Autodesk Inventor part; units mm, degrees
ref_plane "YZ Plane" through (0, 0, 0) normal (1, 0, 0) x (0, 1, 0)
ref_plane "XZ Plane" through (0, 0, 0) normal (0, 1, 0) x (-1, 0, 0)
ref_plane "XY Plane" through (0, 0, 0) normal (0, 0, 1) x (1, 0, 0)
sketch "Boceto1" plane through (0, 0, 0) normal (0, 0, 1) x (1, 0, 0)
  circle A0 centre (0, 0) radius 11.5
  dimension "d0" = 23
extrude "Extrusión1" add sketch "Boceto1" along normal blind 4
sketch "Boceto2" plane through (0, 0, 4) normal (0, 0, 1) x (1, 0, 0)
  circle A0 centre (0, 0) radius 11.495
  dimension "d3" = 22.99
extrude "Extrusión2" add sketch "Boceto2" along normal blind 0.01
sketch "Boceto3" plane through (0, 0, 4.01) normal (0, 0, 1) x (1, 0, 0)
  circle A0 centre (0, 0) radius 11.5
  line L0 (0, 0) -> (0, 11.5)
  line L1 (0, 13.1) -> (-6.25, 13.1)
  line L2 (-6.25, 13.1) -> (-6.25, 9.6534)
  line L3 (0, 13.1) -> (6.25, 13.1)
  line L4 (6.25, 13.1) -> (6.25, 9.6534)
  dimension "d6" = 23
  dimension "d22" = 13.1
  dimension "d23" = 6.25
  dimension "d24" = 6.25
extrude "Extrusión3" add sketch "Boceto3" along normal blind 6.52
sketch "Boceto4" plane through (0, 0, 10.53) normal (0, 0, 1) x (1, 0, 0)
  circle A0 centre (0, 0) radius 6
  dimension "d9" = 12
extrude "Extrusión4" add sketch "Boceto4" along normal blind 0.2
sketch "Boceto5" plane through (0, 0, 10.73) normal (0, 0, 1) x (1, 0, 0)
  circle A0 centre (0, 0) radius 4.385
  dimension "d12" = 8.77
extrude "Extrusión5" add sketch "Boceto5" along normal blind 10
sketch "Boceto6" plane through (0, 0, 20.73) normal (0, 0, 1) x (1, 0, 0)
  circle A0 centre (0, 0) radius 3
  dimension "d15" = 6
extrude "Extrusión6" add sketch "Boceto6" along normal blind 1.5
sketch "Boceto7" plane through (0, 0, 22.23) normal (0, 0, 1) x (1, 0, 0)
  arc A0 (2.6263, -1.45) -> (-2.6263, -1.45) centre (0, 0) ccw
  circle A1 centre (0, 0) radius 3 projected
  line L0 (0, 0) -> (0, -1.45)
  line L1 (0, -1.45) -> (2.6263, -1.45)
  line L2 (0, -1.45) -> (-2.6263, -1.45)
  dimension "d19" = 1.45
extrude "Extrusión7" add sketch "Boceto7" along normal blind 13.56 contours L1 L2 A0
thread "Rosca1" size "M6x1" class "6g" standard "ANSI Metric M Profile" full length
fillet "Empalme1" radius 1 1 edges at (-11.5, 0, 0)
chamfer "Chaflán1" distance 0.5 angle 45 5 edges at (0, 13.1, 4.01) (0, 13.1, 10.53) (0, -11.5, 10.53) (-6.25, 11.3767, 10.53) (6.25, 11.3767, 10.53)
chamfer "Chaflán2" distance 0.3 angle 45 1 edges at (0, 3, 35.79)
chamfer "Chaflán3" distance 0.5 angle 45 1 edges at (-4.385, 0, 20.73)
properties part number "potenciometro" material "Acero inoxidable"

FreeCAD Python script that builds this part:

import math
import FreeCAD as App
import Part
import Sketcher
from FreeCAD import Vector
Q = App.Units.Quantity


def edges_at(feature, points):
    """Names of the edges that pass closest to the given points."""
    edges = feature.Shape.Edges
    near = lambda p: min(range(len(edges)), key=lambda i: edges[i].distToShape(Part.Vertex(*p))[0])
    return sorted({f"Edge{near(p) + 1}" for p in points})

doc = App.newDocument("Part")
params = doc.addObject("Spreadsheet::Sheet", "Params")
for row, (alias, value) in enumerate([
    ("sketch1_diameter", "23 mm"),
    ("pad1_length", "4 mm"),
    ("sketch2_diameter", "22.99 mm"),
    ("pad2_length", "0.01 mm"),
    ("sketch3_radius", "11.5 mm"),
    ("pad3_length", "6.52 mm"),
    ("sketch4_diameter", "12 mm"),
    ("pad4_length", "0.2 mm"),
    ("sketch5_diameter", "8.77 mm"),
    ("pad5_length", "10 mm"),
    ("sketch6_diameter", "6 mm"),
    ("pad6_length", "1.5 mm"),
    ("sketch7_radius", "3 mm"),
    ("pad7_length", "13.56 mm"),
    ("fillet_radius", "1 mm"),
    ("chamfer_size", "0.5 mm"),
    ("chamfer2_size", "0.3 mm"),
    ("chamfer3_size", "0.5 mm"),
], start=1):
    params.set(f"A{row}", alias)
    params.set(f"B{row}", "=" + value)
    params.setAlias(f"B{row}", alias)

body = doc.addObject("PartDesign::Body", "Body")

# Sketch on XY plane
sketch1 = body.newObject("Sketcher::SketchObject", "Sketch")
sketch1.AttachmentSupport = (doc.getObject("XY_Plane"), [""])
sketch1.MapMode = "FlatFace"
sketch1.addGeometry(Part.Circle(Vector(0, 0, 0), Vector(0, 0, 1), 12), False)
sketch1.addConstraint(Sketcher.Constraint("Coincident", 0, 3, -1, 1))
sketch1.addConstraint(Sketcher.Constraint("Diameter", 0, Q("23 mm")))
sketch1.setExpression("Constraints[1]", "Params.sketch1_diameter")
pad1 = body.newObject("PartDesign::Pad", "Pad")
pad1.Profile = sketch1
pad1.setExpression("Length", "Params.pad1_length")

# Sketch on XY plane
sketch2 = body.newObject("Sketcher::SketchObject", "Sketch001")
sketch2.AttachmentSupport = (doc.getObject("XY_Plane"), [""])
sketch2.MapMode = "FlatFace"
sketch2.AttachmentOffset = App.Placement(Vector(0, 0, 4), App.Rotation())
sketch2.addGeometry(Part.Circle(Vector(0, 0, 0), Vector(0, 0, 1), 11), False)
sketch2.addConstraint(Sketcher.Constraint("Coincident", 0, 3, -1, 1))
sketch2.addConstraint(Sketcher.Constraint("Diameter", 0, Q("22.99 mm")))
sketch2.setExpression("Constraints[1]", "Params.sketch2_diameter")
pad2 = body.newObject("PartDesign::Pad", "Pad001")
pad2.Profile = sketch2
pad2.setExpression("Length", "Params.pad2_length")

# Sketch on XY plane
sketch3 = body.newObject("Sketcher::SketchObject", "Sketch002")
sketch3.AttachmentSupport = (doc.getObject("XY_Plane"), [""])
sketch3.MapMode = "FlatFace"
sketch3.AttachmentOffset = App.Placement(Vector(0, 0, 4.01), App.Rotation())
sketch3.addGeometry(Part.ArcOfCircle(Part.Circle(Vector(0, 0, 0), Vector(0, 0, 1), 11.5), math.radians(123), math.radians(417)), False)
sketch3.addGeometry(Part.LineSegment(Vector(6.2, 9.7, 0), Vector(6.2, 13.1, 0)), False)
sketch3.addGeometry(Part.LineSegment(Vector(6.2, 13.1, 0), Vector(-6.2, 13.1, 0)), False)
sketch3.addGeometry(Part.LineSegment(Vector(-6.2, 13.1, 0), Vector(-6.2, 9.7, 0)), False)
sketch3.addConstraint(Sketcher.Constraint("Coincident", 0, 2, 1, 1))
sketch3.addConstraint(Sketcher.Constraint("Coincident", 1, 2, 2, 1))
sketch3.addConstraint(Sketcher.Constraint("Coincident", 2, 2, 3, 1))
sketch3.addConstraint(Sketcher.Constraint("Coincident", 3, 2, 0, 1))
sketch3.addConstraint(Sketcher.Constraint("Vertical", 1))
sketch3.addConstraint(Sketcher.Constraint("Horizontal", 2))
sketch3.addConstraint(Sketcher.Constraint("Vertical", 3))
sketch3.addConstraint(Sketcher.Constraint("Coincident", 0, 3, -1, 1))
sketch3.addConstraint(Sketcher.Constraint("Horizontal", 0, 2, 3, 2))
sketch3.addConstraint(Sketcher.Constraint("Radius", 0, Q("11.5 mm")))
sketch3.addConstraint(Sketcher.Constraint("DistanceY", -1, 1, 1, 2, Q("13.1 mm")))
sketch3.addConstraint(Sketcher.Constraint("DistanceX", -1, 1, 0, 2, Q("6.25 mm")))
sketch3.setExpression("Constraints[9]", "Params.sketch3_radius")
pad3 = body.newObject("PartDesign::Pad", "Pad002")
pad3.Profile = sketch3
pad3.setExpression("Length", "Params.pad3_length")

# Sketch on XY plane
sketch4 = body.newObject("Sketcher::SketchObject", "Sketch003")
sketch4.AttachmentSupport = (doc.getObject("XY_Plane"), [""])
sketch4.MapMode = "FlatFace"
sketch4.AttachmentOffset = App.Placement(Vector(0, 0, 10.53), App.Rotation())
sketch4.addGeometry(Part.Circle(Vector(0, 0, 0), Vector(0, 0, 1), 6), False)
sketch4.addConstraint(Sketcher.Constraint("Coincident", 0, 3, -1, 1))
sketch4.addConstraint(Sketcher.Constraint("Diameter", 0, Q("12 mm")))
sketch4.setExpression("Constraints[1]", "Params.sketch4_diameter")
pad4 = body.newObject("PartDesign::Pad", "Pad003")
pad4.Profile = sketch4
pad4.setExpression("Length", "Params.pad4_length")

# Sketch on XY plane
sketch5 = body.newObject("Sketcher::SketchObject", "Sketch004")
sketch5.AttachmentSupport = (doc.getObject("XY_Plane"), [""])
sketch5.MapMode = "FlatFace"
sketch5.AttachmentOffset = App.Placement(Vector(0, 0, 10.73), App.Rotation())
sketch5.addGeometry(Part.Circle(Vector(0, 0, 0), Vector(0, 0, 1), 4.4), False)
sketch5.addConstraint(Sketcher.Constraint("Coincident", 0, 3, -1, 1))
sketch5.addConstraint(Sketcher.Constraint("Diameter", 0, Q("8.77 mm")))
sketch5.setExpression("Constraints[1]", "Params.sketch5_diameter")
pad5 = body.newObject("PartDesign::Pad", "Pad004")
pad5.Profile = sketch5
pad5.setExpression("Length", "Params.pad5_length")

# Sketch on XY plane
sketch6 = body.newObject("Sketcher::SketchObject", "Sketch005")
sketch6.AttachmentSupport = (doc.getObject("XY_Plane"), [""])
sketch6.MapMode = "FlatFace"
sketch6.AttachmentOffset = App.Placement(Vector(0, 0, 20.73), App.Rotation())
sketch6.addGeometry(Part.Circle(Vector(0, 0, 0), Vector(0, 0, 1), 3), False)
sketch6.addConstraint(Sketcher.Constraint("Coincident", 0, 3, -1, 1))
sketch6.addConstraint(Sketcher.Constraint("Diameter", 0, Q("6 mm")))
sketch6.setExpression("Constraints[1]", "Params.sketch6_diameter")
pad6 = body.newObject("PartDesign::Pad", "Pad005")
pad6.Profile = sketch6
pad6.setExpression("Length", "Params.pad6_length")

# Sketch on XY plane
sketch7 = body.newObject("Sketcher::SketchObject", "Sketch006")
sketch7.AttachmentSupport = (doc.getObject("XY_Plane"), [""])
sketch7.MapMode = "FlatFace"
sketch7.AttachmentOffset = App.Placement(Vector(0, 0, 22.23), App.Rotation())
sketch7.addGeometry(Part.LineSegment(Vector(-2.6, -1.4, 0), Vector(2.6, -1.4, 0)), False)
sketch7.addGeometry(Part.ArcOfCircle(Part.Circle(Vector(0, 0, 0), Vector(0, 0, 1), 3), math.radians(-29), math.radians(209)), False)
sketch7.addConstraint(Sketcher.Constraint("Coincident", 0, 1, 1, 2))
sketch7.addConstraint(Sketcher.Constraint("Coincident", 1, 1, 0, 2))
sketch7.addConstraint(Sketcher.Constraint("Horizontal", 0))
sketch7.addConstraint(Sketcher.Constraint("Coincident", 1, 3, -1, 1))
sketch7.addConstraint(Sketcher.Constraint("Radius", 1, Q("3 mm")))
sketch7.addConstraint(Sketcher.Constraint("DistanceY", 0, 1, -1, 1, Q("1.45 mm")))
sketch7.setExpression("Constraints[4]", "Params.sketch7_radius")
pad7 = body.newObject("PartDesign::Pad", "Pad006")
pad7.Profile = sketch7
pad7.setExpression("Length", "Params.pad7_length")
doc.recompute()

fillet = body.newObject("PartDesign::Fillet", "Fillet")
fillet.Base = (pad7, edges_at(pad7, [(-11.5, 0, 0)]))
fillet.setExpression("Radius", "Params.fillet_radius")
doc.recompute()

chamfer = body.newObject("PartDesign::Chamfer", "Chamfer")
chamfer.Base = (fillet, edges_at(fillet, [
    (0, 13.1, 4.01),
    (0, 13.1, 10.53),
    (0, -11.5, 10.53),
    (-6.25, 11.377, 10.53),
    (6.25, 11.377, 10.53),
]))
chamfer.setExpression("Size", "Params.chamfer_size")
doc.recompute()

chamfer2 = body.newObject("PartDesign::Chamfer", "Chamfer001")
chamfer2.Base = (chamfer, edges_at(chamfer, [(0, 3, 35.79)]))
chamfer2.setExpression("Size", "Params.chamfer2_size")
doc.recompute()

chamfer3 = body.newObject("PartDesign::Chamfer", "Chamfer002")
chamfer3.Base = (chamfer2, edges_at(chamfer2, [(-4.385, 0, 20.73)]))
chamfer3.setExpression("Size", "Params.chamfer3_size")

doc.recompute()
